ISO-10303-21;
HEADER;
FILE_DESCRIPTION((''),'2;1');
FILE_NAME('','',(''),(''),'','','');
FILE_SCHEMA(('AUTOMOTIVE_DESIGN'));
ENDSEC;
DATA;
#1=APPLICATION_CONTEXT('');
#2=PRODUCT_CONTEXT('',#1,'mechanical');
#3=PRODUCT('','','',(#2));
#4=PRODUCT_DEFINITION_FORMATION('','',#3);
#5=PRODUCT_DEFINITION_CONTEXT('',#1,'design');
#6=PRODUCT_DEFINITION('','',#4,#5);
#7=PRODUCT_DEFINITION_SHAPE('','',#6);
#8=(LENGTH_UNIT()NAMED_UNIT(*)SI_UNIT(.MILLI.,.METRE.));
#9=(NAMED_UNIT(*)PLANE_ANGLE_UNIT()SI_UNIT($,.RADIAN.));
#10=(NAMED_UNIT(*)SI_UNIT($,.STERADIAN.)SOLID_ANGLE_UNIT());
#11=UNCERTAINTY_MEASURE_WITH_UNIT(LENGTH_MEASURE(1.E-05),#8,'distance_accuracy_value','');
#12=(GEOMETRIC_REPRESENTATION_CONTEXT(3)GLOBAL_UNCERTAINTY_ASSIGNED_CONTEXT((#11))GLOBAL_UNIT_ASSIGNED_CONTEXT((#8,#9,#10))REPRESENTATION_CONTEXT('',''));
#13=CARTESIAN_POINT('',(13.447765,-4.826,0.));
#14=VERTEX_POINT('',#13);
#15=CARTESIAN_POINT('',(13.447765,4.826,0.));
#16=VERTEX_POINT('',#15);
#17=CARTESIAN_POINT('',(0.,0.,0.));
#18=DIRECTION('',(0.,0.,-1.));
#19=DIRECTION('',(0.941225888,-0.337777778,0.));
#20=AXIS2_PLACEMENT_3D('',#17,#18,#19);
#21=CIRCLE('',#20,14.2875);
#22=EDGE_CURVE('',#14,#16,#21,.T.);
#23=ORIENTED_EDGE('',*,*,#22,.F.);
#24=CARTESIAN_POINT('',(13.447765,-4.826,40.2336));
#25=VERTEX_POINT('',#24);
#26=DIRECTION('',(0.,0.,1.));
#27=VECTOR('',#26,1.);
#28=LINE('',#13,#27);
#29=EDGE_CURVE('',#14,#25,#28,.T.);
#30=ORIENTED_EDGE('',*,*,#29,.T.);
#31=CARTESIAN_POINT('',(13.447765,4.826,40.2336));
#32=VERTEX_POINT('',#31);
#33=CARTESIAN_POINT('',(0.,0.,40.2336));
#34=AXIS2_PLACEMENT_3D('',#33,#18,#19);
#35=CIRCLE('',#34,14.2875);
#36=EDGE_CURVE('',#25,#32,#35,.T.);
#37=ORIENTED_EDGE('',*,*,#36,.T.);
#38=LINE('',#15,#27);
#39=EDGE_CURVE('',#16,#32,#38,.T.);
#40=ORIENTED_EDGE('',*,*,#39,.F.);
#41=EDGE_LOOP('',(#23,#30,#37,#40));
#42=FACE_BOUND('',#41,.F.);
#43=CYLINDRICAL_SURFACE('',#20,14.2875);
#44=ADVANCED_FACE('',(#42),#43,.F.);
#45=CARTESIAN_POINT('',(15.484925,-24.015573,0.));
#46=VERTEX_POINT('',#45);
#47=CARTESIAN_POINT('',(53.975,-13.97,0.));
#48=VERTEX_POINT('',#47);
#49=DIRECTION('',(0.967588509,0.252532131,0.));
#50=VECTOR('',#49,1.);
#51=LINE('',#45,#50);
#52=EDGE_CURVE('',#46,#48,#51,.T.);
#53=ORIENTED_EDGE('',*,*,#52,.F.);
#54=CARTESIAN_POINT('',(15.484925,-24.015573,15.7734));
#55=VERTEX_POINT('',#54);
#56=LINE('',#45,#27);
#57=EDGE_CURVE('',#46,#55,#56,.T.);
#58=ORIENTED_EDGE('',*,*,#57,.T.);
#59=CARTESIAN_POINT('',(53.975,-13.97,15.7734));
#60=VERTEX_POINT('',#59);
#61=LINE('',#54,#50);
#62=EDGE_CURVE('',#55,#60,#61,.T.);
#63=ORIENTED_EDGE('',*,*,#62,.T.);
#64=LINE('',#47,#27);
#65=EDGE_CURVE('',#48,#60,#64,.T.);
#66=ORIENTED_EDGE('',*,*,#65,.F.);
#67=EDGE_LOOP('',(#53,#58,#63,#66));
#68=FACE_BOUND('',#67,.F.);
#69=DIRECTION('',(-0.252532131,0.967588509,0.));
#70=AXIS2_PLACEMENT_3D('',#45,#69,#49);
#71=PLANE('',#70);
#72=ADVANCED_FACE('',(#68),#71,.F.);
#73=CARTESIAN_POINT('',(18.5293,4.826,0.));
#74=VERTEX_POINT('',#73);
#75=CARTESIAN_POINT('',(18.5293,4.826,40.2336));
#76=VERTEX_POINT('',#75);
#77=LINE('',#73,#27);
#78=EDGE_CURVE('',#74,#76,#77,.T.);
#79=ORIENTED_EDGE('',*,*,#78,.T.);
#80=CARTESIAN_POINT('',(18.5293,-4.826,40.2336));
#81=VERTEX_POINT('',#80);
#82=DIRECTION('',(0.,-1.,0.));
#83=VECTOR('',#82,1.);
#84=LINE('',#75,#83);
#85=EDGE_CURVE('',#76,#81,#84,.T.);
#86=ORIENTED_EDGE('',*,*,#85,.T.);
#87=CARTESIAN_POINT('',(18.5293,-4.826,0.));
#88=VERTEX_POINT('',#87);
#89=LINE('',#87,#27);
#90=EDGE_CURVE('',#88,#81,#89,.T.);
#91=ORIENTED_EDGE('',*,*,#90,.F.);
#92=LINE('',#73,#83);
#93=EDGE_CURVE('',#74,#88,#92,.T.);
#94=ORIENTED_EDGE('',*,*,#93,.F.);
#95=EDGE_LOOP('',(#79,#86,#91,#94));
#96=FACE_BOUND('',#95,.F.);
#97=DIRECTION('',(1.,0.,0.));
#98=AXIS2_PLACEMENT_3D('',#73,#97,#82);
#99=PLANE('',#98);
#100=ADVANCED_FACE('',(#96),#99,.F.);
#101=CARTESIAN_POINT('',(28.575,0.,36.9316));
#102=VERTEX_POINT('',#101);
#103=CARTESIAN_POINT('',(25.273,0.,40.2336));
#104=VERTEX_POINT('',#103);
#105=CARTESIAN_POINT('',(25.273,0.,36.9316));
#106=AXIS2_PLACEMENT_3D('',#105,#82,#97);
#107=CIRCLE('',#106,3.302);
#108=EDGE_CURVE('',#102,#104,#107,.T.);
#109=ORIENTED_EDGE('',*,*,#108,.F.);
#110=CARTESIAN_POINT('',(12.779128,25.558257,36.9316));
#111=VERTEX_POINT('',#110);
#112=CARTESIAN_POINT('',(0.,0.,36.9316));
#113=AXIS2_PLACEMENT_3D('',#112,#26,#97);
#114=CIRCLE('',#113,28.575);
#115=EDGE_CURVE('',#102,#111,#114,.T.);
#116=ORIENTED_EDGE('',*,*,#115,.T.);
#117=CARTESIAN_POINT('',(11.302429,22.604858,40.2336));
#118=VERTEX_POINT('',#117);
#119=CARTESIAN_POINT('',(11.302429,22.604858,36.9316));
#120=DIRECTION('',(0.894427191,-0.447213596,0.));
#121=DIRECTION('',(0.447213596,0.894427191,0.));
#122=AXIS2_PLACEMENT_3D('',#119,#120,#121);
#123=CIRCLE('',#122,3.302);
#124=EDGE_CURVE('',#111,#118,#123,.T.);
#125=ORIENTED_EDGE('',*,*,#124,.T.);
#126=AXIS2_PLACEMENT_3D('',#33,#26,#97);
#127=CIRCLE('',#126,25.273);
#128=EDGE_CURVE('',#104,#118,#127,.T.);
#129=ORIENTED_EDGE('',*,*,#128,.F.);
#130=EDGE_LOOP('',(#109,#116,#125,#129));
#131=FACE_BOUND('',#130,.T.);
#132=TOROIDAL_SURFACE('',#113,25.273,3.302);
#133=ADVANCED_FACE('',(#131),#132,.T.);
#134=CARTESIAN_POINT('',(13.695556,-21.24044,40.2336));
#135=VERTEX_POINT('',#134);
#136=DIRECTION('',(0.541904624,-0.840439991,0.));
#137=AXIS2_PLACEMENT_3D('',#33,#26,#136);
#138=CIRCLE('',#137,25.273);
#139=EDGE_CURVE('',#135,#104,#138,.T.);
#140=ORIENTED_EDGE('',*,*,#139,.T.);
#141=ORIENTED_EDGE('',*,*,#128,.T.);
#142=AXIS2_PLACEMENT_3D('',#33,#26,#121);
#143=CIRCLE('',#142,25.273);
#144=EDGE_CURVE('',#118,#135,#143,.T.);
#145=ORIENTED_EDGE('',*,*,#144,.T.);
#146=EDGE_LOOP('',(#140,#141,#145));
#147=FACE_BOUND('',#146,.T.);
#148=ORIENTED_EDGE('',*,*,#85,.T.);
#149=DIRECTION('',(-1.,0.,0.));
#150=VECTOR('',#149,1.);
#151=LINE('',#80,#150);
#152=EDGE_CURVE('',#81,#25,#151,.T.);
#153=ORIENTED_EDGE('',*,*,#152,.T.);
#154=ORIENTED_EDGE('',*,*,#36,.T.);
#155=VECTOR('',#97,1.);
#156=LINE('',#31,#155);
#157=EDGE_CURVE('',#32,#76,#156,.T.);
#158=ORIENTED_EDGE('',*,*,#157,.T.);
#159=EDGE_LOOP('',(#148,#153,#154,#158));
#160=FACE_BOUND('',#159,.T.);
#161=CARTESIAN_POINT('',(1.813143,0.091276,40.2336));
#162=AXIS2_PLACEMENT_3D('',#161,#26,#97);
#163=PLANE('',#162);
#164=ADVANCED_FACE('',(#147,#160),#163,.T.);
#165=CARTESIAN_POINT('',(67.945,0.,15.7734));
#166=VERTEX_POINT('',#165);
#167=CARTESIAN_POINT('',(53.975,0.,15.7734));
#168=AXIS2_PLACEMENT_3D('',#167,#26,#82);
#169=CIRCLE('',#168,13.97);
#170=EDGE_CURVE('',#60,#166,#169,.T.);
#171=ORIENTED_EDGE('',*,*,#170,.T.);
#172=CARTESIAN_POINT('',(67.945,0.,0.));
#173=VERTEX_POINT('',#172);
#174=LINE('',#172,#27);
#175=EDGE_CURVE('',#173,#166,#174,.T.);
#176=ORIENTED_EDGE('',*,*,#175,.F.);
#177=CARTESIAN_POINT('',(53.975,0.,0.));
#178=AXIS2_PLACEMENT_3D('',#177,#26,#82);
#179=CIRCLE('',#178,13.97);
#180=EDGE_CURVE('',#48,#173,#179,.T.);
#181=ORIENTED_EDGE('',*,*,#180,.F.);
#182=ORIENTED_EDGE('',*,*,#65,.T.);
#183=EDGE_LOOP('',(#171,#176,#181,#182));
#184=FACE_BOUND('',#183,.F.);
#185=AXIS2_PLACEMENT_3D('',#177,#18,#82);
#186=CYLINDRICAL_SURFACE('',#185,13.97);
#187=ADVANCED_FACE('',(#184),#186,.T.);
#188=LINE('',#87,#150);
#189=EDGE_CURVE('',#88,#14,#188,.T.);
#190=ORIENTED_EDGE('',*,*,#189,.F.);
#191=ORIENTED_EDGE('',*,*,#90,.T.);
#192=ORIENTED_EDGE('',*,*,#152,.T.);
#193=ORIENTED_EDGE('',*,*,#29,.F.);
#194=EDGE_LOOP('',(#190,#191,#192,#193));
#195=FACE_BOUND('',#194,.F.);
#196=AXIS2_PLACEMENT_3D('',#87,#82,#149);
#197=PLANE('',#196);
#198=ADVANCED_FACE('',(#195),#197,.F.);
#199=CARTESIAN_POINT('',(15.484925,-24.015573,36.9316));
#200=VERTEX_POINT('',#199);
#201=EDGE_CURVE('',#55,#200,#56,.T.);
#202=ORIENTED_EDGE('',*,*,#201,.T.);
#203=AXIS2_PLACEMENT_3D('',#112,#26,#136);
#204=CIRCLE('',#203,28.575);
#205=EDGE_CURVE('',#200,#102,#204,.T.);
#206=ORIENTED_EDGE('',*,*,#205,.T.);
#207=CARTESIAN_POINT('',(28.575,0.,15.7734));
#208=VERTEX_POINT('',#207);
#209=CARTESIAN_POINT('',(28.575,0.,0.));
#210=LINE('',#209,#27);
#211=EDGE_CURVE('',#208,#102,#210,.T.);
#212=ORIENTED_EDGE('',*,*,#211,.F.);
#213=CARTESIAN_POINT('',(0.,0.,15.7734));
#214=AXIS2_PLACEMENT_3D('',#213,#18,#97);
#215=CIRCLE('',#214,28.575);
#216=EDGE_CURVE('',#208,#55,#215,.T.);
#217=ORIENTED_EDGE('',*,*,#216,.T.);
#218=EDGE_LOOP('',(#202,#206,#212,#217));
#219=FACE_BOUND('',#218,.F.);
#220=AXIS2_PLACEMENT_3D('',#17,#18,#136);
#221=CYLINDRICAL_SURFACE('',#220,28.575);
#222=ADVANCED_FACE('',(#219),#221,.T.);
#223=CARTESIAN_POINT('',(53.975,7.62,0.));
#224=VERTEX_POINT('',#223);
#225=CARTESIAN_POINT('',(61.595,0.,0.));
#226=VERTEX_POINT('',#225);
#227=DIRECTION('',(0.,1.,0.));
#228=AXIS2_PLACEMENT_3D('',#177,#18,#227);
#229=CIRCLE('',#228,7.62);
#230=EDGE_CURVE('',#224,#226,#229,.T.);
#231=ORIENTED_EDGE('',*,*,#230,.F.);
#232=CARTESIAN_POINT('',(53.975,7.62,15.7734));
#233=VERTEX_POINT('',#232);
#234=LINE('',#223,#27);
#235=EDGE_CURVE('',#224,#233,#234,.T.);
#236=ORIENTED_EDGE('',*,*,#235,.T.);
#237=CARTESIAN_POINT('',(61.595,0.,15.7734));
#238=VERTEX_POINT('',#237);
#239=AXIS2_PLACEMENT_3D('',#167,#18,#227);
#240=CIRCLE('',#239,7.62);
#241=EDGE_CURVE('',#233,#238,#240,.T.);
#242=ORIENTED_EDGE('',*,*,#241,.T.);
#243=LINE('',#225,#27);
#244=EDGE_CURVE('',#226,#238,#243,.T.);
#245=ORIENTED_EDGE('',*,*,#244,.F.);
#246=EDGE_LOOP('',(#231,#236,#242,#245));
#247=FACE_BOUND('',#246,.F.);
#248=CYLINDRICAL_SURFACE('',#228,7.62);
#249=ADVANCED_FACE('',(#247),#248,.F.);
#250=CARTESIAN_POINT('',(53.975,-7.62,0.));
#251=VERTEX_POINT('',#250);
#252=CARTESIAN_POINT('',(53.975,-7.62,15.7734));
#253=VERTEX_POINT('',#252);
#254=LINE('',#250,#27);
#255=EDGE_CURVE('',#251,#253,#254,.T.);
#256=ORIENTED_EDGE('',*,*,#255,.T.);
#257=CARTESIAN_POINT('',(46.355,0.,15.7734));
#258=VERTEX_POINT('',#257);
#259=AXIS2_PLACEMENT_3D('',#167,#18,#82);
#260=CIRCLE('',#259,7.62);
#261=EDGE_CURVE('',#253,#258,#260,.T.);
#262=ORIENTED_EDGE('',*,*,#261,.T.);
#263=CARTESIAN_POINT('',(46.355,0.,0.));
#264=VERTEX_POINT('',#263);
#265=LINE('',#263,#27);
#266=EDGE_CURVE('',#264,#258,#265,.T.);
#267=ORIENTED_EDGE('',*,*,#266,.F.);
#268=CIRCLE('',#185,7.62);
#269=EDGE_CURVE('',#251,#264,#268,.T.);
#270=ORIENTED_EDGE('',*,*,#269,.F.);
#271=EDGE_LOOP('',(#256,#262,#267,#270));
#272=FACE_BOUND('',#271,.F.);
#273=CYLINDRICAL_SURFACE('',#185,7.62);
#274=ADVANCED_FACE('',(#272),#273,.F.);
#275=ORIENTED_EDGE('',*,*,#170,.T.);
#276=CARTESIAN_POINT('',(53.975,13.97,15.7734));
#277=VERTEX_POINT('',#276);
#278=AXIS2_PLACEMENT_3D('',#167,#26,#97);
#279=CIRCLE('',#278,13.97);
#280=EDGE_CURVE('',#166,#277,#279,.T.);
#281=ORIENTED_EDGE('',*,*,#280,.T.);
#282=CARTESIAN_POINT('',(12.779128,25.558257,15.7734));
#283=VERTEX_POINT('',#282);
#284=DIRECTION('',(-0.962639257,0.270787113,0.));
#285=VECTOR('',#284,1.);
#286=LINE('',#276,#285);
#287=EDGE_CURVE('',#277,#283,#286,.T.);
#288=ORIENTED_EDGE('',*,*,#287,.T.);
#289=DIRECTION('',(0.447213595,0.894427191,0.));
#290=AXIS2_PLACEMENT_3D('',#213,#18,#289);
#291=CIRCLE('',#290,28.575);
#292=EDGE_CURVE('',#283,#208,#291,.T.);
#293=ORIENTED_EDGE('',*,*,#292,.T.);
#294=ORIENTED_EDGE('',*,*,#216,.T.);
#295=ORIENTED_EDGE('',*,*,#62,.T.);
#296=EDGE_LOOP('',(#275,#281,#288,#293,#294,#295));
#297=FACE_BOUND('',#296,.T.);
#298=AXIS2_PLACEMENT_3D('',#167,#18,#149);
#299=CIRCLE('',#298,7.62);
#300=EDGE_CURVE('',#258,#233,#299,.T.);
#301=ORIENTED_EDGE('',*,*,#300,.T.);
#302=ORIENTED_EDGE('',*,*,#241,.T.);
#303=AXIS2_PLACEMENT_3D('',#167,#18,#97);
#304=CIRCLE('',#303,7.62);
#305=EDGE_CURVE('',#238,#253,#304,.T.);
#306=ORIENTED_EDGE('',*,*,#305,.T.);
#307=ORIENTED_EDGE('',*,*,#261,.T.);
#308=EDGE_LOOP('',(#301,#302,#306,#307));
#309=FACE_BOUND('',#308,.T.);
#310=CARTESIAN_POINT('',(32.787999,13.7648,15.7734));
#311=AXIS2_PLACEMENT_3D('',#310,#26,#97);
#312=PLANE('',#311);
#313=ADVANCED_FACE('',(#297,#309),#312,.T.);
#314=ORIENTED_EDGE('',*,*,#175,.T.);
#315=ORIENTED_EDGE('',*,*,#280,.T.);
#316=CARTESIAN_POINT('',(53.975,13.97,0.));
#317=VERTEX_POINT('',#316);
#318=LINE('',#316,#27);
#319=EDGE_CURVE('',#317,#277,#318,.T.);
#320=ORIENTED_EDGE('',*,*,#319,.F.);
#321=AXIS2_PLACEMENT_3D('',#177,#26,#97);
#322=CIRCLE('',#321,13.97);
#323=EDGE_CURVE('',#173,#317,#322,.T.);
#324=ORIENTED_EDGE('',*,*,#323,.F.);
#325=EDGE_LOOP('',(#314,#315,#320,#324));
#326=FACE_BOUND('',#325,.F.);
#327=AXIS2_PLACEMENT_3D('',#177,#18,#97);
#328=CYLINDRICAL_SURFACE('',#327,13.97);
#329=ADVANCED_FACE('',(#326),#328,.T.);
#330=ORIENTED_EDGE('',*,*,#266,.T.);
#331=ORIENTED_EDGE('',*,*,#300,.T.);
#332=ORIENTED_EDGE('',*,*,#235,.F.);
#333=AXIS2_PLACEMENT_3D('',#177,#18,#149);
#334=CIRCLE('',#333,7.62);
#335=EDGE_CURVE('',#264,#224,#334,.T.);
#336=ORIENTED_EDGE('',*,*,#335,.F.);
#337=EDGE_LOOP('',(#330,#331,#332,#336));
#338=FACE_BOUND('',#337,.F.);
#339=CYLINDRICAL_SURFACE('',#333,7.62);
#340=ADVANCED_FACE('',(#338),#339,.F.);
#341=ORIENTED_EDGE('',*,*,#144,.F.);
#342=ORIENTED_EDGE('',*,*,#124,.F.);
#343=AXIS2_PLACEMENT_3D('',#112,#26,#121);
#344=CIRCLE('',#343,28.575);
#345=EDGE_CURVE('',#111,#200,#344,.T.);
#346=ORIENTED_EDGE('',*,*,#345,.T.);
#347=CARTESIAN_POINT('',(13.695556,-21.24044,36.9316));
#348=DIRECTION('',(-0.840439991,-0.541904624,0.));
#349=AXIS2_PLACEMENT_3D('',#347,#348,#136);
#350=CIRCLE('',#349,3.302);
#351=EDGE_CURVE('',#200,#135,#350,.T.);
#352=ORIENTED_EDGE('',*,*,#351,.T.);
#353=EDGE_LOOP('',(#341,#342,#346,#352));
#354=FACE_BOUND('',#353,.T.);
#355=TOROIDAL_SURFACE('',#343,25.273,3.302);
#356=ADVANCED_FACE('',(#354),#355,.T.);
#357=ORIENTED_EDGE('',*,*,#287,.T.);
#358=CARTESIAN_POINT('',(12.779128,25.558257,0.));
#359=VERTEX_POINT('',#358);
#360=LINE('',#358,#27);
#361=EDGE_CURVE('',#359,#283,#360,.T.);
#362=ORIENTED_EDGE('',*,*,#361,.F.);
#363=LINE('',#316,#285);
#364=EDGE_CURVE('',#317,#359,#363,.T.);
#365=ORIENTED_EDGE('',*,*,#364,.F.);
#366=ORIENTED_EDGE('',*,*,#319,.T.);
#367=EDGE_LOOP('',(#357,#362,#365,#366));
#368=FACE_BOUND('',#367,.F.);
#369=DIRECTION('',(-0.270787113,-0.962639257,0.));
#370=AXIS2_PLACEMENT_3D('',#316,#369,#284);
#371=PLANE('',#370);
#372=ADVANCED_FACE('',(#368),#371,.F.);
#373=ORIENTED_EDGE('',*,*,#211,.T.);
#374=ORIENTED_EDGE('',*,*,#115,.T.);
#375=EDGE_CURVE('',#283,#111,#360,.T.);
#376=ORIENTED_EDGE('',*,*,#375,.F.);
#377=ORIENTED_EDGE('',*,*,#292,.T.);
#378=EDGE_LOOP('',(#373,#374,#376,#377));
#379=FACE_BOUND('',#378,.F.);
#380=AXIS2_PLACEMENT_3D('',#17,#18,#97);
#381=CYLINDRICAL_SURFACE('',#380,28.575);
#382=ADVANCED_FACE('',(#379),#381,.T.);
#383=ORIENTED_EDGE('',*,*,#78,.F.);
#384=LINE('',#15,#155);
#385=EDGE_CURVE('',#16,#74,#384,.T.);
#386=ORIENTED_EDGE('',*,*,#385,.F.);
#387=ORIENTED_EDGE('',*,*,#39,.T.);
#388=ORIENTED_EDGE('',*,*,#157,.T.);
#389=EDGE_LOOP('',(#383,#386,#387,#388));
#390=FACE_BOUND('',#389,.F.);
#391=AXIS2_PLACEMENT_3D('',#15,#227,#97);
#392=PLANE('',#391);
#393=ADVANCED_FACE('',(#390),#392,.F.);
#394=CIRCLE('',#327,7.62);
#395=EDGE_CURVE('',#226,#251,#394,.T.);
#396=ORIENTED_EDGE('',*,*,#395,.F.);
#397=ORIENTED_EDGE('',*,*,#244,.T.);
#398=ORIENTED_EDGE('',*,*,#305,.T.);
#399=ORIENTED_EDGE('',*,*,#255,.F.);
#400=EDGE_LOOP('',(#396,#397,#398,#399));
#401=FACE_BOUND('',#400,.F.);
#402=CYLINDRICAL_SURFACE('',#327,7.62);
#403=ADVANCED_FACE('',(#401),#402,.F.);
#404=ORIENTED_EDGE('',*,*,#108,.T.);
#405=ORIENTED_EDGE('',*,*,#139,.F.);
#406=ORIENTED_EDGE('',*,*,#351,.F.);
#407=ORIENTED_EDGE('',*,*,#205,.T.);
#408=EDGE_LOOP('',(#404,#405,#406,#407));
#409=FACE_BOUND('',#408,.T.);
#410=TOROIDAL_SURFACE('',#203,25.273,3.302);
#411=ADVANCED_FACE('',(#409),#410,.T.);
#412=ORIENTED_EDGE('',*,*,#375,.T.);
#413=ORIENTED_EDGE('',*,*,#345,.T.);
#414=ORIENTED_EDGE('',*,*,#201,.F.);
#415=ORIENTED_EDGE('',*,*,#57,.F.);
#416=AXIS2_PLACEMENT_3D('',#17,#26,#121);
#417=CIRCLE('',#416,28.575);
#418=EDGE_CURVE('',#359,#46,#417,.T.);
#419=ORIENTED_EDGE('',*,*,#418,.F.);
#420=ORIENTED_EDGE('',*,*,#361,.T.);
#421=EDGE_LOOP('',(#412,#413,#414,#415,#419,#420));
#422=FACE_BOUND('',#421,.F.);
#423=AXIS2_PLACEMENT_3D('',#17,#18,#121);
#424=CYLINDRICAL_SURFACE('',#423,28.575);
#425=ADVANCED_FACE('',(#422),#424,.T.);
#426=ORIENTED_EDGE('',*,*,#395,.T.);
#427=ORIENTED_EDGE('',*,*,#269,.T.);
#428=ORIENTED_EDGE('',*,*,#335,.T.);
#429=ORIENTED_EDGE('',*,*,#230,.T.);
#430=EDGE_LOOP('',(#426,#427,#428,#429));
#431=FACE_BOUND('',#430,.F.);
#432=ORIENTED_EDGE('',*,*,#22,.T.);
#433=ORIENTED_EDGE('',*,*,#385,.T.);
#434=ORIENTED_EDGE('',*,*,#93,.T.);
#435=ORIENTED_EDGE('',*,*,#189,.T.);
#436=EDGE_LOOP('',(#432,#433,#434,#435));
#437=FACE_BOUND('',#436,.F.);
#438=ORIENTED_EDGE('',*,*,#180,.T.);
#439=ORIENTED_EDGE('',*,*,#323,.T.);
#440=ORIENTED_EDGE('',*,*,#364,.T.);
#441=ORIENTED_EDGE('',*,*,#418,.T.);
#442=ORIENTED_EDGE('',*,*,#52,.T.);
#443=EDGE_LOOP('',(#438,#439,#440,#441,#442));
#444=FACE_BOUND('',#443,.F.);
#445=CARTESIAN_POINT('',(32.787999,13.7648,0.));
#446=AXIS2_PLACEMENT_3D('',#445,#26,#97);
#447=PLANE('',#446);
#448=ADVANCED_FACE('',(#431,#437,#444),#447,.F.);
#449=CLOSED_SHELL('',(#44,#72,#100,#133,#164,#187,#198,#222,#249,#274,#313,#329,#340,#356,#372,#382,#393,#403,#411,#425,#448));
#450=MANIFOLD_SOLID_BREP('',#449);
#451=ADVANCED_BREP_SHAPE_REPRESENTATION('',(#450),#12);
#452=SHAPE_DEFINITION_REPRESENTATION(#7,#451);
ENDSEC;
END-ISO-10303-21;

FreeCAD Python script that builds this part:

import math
import FreeCAD as App
import Part
import Sketcher

V = App.Vector
Q = App.Units.Quantity


def edges_at(feature, points):
    """Names of the edges that pass closest to the given points."""
    edges = feature.Shape.Edges
    near = lambda p: min(range(len(edges)), key=lambda i: edges[i].distToShape(Part.Vertex(*p))[0])
    return sorted({f"Edge{near(p) + 1}" for p in points})

doc = App.newDocument("Part")
body = doc.addObject("PartDesign::Body", "Body")

sketch1 = body.newObject("Sketcher::SketchObject", "Sketch")
sketch1.AttachmentSupport = (doc.getObject("XY_Plane"), [""])
sketch1.MapMode = "FlatFace"
sketch1.addGeometry([
    Part.ArcOfCircle(Part.Circle(V(0, 0, 0), V(0, 0, 1), 29), math.radians(-57), math.radians(0)),
    Part.ArcOfCircle(Part.Circle(V(0, 0, 0), V(0, 0, 1), 29), math.radians(0), math.radians(63)),
    Part.ArcOfCircle(Part.Circle(V(0, 0, 0), V(0, 0, 1), 29), math.radians(63), math.radians(303)),
    Part.LineSegment(V(13, 5, 0), V(19, 5, 0)),
    Part.LineSegment(V(19, 5, 0), V(19, -5, 0)),
    Part.LineSegment(V(19, -5, 0), V(13, -5, 0)),
    Part.ArcOfCircle(Part.Circle(V(0, 0, 0), V(0, 0, 1), 14), math.radians(20), math.radians(340)),
], False)
sketch1.addConstraint([
    Sketcher.Constraint("Tangent", 0, 2, 1, 1),
    Sketcher.Constraint("Tangent", 1, 2, 2, 1),
    Sketcher.Constraint("Tangent", 2, 2, 0, 1),
    Sketcher.Constraint("Coincident", 3, 2, 4, 1),
    Sketcher.Constraint("Coincident", 4, 2, 5, 1),
    Sketcher.Constraint("Coincident", 5, 2, 6, 2),
    Sketcher.Constraint("Coincident", 6, 1, 3, 1),
    Sketcher.Constraint("Horizontal", 3),
    Sketcher.Constraint("Vertical", 4),
    Sketcher.Constraint("Horizontal", 5),
    Sketcher.Constraint("Coincident", 0, 3, -1, 1),
    Sketcher.Constraint("Coincident", 6, 3, -1, 1),
    Sketcher.Constraint("PointOnObject", 0, 2, -1),
    Sketcher.Constraint("Vertical", 5, 2, 6, 1),
    Sketcher.Constraint("Radius", 0, Q("1.125 in")),
    Sketcher.Constraint("Radius", 6, Q("0.5625 in")),
    Sketcher.Constraint("DistanceY", 4, 2, 4, 1, Q("0.38 in")),
    Sketcher.Constraint("DistanceX", -1, 1, 3, 2, Q("0.7295 in")),
    Sketcher.Constraint("DistanceX", -1, 1, 1, 2, Q("12.779128 mm")),
    Sketcher.Constraint("DistanceX", -1, 1, 2, 2, Q("15.484925 mm")),
])
pad1 = body.newObject("PartDesign::Pad", "Pad")
pad1.Profile = sketch1
pad1.Length = Q("1.584 in")

sketch2 = body.newObject("Sketcher::SketchObject", "Sketch001")
sketch2.AttachmentSupport = (doc.getObject("XY_Plane"), [""])
sketch2.MapMode = "FlatFace"
sketch2.addGeometry([
    Part.ArcOfCircle(Part.Circle(V(0, 0, 0), V(0, 0, 1), 29), math.radians(0), math.radians(63)),
    Part.ArcOfCircle(Part.Circle(V(0, 0, 0), V(0, 0, 1), 29), math.radians(-57), math.radians(0)),
    Part.LineSegment(V(15, -24, 0), V(54, -14, 0)),
    Part.ArcOfCircle(Part.Circle(V(54, 0, 0), V(0, 0, 1), 14), math.radians(-90), math.radians(0)),
    Part.ArcOfCircle(Part.Circle(V(54, 0, 0), V(0, 0, 1), 14), math.radians(0), math.radians(90)),
    Part.LineSegment(V(54, 14, 0), V(13, 26, 0)),
    Part.ArcOfCircle(Part.Circle(V(54, 0, 0), V(0, 0, 1), 8), math.radians(180), math.radians(270)),
    Part.ArcOfCircle(Part.Circle(V(54, 0, 0), V(0, 0, 1), 8), math.radians(90), math.radians(180)),
    Part.ArcOfCircle(Part.Circle(V(54, 0, 0), V(0, 0, 1), 8), math.radians(0), math.radians(90)),
    Part.ArcOfCircle(Part.Circle(V(54, 0, 0), V(0, 0, 1), 8), math.radians(-90), math.radians(0)),
], False)
sketch2.addConstraint([
    Sketcher.Constraint("Tangent", 0, 1, 1, 2),
    Sketcher.Constraint("Coincident", 1, 1, 2, 1),
    Sketcher.Constraint("Coincident", 2, 2, 3, 1),
    Sketcher.Constraint("Tangent", 3, 2, 4, 1),
    Sketcher.Constraint("Coincident", 4, 2, 5, 1),
    Sketcher.Constraint("Coincident", 5, 2, 0, 2),
    Sketcher.Constraint("Tangent", 6, 1, 7, 2),
    Sketcher.Constraint("Tangent", 7, 1, 8, 2),
    Sketcher.Constraint("Tangent", 8, 1, 9, 2),
    Sketcher.Constraint("Tangent", 9, 1, 6, 2),
    Sketcher.Constraint("Coincident", 0, 3, -1, 1),
    Sketcher.Constraint("Coincident", 6, 3, 3, 3),
    Sketcher.Constraint("Equal", 0, 1),
    Sketcher.Constraint("Equal", 3, 4),
    Sketcher.Constraint("Equal", 6, 7),
    Sketcher.Constraint("Symmetric", 2, 2, 4, 2, -1),
    Sketcher.Constraint("PointOnObject", 0, 1, -1),
    Sketcher.Constraint("PointOnObject", 3, 2, -1),
    Sketcher.Constraint("PointOnObject", 6, 1, -1),
    Sketcher.Constraint("PointOnObject", 8, 1, -1),
    Sketcher.Constraint("Vertical", 9, 3, 2, 2),
    Sketcher.Constraint("Vertical", 4, 2, 7, 1),
    Sketcher.Constraint("Vertical", 7, 1, 9, 1),
    Sketcher.Constraint("Radius", 6, Q("0.3 in")),
    Sketcher.Constraint("Radius", 3, Q("0.55 in")),
    Sketcher.Constraint("Radius", 0, Q("1.125 in")),
    Sketcher.Constraint("DistanceX", 0, 1, 3, 3, Q("1 in")),
    Sketcher.Constraint("DistanceX", -1, 1, 5, 2, Q("12.779128 mm")),
    Sketcher.Constraint("Distance", 2, Q("39.779385 mm")),
])
pad2 = body.newObject("PartDesign::Pad", "Pad001")
pad2.Profile = sketch2
pad2.Length = Q("0.621 in")
doc.recompute()

fillet = body.newObject("PartDesign::Fillet", "Fillet")
fillet.Base = (pad2, edges_at(pad2, [(-28.533, -1.557, 40.234)]))
fillet.Radius = Q("0.13 in")

doc.recompute()
